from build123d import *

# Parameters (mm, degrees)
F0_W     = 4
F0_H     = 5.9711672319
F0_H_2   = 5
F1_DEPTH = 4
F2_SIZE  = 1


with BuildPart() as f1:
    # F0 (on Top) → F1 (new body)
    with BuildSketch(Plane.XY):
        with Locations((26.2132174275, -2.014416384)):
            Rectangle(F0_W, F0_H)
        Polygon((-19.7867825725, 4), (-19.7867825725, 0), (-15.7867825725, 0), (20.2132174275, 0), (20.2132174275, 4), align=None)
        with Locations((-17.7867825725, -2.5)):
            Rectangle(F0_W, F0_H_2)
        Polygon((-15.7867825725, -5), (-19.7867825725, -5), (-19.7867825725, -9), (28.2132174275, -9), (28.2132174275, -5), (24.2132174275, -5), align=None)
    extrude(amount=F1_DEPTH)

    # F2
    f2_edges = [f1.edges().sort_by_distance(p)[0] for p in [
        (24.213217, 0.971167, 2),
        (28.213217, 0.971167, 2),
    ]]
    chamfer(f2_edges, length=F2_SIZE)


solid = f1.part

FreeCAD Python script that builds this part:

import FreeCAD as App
import Part
import Sketcher
Q = App.Units.Quantity


def edges_at(feature, points):
    """Names of the edges that pass closest to the given points."""
    edges = feature.Shape.Edges
    near = lambda p: min(range(len(edges)), key=lambda i: edges[i].distToShape(Part.Vertex(*p))[0])
    return sorted({f"Edge{near(p) + 1}" for p in points})

doc = App.newDocument("Part")
body = doc.addObject("PartDesign::Body", "Body")

sketch1 = body.newObject("Sketcher::SketchObject", "Sketch")
sketch1.AttachmentSupport = (doc.getObject("XY_Plane"), [""])
sketch1.MapMode = "FlatFace"
sketch1.addGeometry(Part.LineSegment(App.Vector(24.2, 1, 0), App.Vector(24.2, -5, 0)), False)
sketch1.addGeometry(Part.LineSegment(App.Vector(24.2, -5, 0), App.Vector(-15.8, -5, 0)), False)
sketch1.addGeometry(Part.LineSegment(App.Vector(-15.8, -5, 0), App.Vector(-15.8, 0, 0)), False)
sketch1.addGeometry(Part.LineSegment(App.Vector(-15.8, 0, 0), App.Vector(20.2, 0, 0)), False)
sketch1.addGeometry(Part.LineSegment(App.Vector(20.2, 0, 0), App.Vector(20.2, 4, 0)), False)
sketch1.addGeometry(Part.LineSegment(App.Vector(20.2, 4, 0), App.Vector(-19.8, 4, 0)), False)
sketch1.addGeometry(Part.LineSegment(App.Vector(-19.8, 4, 0), App.Vector(-19.8, -9, 0)), False)
sketch1.addGeometry(Part.LineSegment(App.Vector(-19.8, -9, 0), App.Vector(28.2, -9, 0)), False)
sketch1.addGeometry(Part.LineSegment(App.Vector(28.2, -9, 0), App.Vector(28.2, 1, 0)), False)
sketch1.addGeometry(Part.LineSegment(App.Vector(28.2, 1, 0), App.Vector(24.2, 1, 0)), False)
sketch1.addConstraint(Sketcher.Constraint("Coincident", 0, 2, 1, 1))
sketch1.addConstraint(Sketcher.Constraint("Coincident", 1, 2, 2, 1))
sketch1.addConstraint(Sketcher.Constraint("Coincident", 2, 2, 3, 1))
sketch1.addConstraint(Sketcher.Constraint("Coincident", 3, 2, 4, 1))
sketch1.addConstraint(Sketcher.Constraint("Coincident", 4, 2, 5, 1))
sketch1.addConstraint(Sketcher.Constraint("Coincident", 5, 2, 6, 1))
sketch1.addConstraint(Sketcher.Constraint("Coincident", 6, 2, 7, 1))
sketch1.addConstraint(Sketcher.Constraint("Coincident", 7, 2, 8, 1))
sketch1.addConstraint(Sketcher.Constraint("Coincident", 8, 2, 9, 1))
sketch1.addConstraint(Sketcher.Constraint("Coincident", 9, 2, 0, 1))
sketch1.addConstraint(Sketcher.Constraint("Vertical", 0))
sketch1.addConstraint(Sketcher.Constraint("Horizontal", 1))
sketch1.addConstraint(Sketcher.Constraint("Vertical", 2))
sketch1.addConstraint(Sketcher.Constraint("Horizontal", 3))
sketch1.addConstraint(Sketcher.Constraint("Vertical", 4))
sketch1.addConstraint(Sketcher.Constraint("Horizontal", 5))
sketch1.addConstraint(Sketcher.Constraint("Vertical", 6))
sketch1.addConstraint(Sketcher.Constraint("Horizontal", 7))
sketch1.addConstraint(Sketcher.Constraint("Vertical", 8))
sketch1.addConstraint(Sketcher.Constraint("Horizontal", 9))
sketch1.addConstraint(Sketcher.Constraint("PointOnObject", 2, 2, -1))
sketch1.addConstraint(Sketcher.Constraint("Equal", 1, 5))
sketch1.addConstraint(Sketcher.Constraint("Equal", 9, 4))
sketch1.addConstraint(Sketcher.Constraint("DistanceX", 1, 2, 1, 1, Q("40 mm")))
sketch1.addConstraint(Sketcher.Constraint("DistanceX", 3, 1, 3, 2, Q("36 mm")))
sketch1.addConstraint(Sketcher.Constraint("DistanceX", 7, 1, 7, 2, Q("48 mm")))
sketch1.addConstraint(Sketcher.Constraint("DistanceY", 2, 1, 2, 2, Q("5 mm")))
sketch1.addConstraint(Sketcher.Constraint("DistanceY", 6, 2, 6, 1, Q("13 mm")))
sketch1.addConstraint(Sketcher.Constraint("DistanceY", 0, 2, 0, 1, Q("5.971167 mm")))
sketch1.addConstraint(Sketcher.Constraint("DistanceX", -1, 1, 0, 2, Q("24.213217 mm")))
pad1 = body.newObject("PartDesign::Pad", "Pad")
pad1.Profile = sketch1
pad1.Length = 4
doc.recompute()

chamfer = body.newObject("PartDesign::Chamfer", "Chamfer")
chamfer.Base = (pad1, edges_at(pad1, [(24.213, 0.971, 2), (28.213, 0.971, 2)]))
chamfer.Size = 1

doc.recompute()
